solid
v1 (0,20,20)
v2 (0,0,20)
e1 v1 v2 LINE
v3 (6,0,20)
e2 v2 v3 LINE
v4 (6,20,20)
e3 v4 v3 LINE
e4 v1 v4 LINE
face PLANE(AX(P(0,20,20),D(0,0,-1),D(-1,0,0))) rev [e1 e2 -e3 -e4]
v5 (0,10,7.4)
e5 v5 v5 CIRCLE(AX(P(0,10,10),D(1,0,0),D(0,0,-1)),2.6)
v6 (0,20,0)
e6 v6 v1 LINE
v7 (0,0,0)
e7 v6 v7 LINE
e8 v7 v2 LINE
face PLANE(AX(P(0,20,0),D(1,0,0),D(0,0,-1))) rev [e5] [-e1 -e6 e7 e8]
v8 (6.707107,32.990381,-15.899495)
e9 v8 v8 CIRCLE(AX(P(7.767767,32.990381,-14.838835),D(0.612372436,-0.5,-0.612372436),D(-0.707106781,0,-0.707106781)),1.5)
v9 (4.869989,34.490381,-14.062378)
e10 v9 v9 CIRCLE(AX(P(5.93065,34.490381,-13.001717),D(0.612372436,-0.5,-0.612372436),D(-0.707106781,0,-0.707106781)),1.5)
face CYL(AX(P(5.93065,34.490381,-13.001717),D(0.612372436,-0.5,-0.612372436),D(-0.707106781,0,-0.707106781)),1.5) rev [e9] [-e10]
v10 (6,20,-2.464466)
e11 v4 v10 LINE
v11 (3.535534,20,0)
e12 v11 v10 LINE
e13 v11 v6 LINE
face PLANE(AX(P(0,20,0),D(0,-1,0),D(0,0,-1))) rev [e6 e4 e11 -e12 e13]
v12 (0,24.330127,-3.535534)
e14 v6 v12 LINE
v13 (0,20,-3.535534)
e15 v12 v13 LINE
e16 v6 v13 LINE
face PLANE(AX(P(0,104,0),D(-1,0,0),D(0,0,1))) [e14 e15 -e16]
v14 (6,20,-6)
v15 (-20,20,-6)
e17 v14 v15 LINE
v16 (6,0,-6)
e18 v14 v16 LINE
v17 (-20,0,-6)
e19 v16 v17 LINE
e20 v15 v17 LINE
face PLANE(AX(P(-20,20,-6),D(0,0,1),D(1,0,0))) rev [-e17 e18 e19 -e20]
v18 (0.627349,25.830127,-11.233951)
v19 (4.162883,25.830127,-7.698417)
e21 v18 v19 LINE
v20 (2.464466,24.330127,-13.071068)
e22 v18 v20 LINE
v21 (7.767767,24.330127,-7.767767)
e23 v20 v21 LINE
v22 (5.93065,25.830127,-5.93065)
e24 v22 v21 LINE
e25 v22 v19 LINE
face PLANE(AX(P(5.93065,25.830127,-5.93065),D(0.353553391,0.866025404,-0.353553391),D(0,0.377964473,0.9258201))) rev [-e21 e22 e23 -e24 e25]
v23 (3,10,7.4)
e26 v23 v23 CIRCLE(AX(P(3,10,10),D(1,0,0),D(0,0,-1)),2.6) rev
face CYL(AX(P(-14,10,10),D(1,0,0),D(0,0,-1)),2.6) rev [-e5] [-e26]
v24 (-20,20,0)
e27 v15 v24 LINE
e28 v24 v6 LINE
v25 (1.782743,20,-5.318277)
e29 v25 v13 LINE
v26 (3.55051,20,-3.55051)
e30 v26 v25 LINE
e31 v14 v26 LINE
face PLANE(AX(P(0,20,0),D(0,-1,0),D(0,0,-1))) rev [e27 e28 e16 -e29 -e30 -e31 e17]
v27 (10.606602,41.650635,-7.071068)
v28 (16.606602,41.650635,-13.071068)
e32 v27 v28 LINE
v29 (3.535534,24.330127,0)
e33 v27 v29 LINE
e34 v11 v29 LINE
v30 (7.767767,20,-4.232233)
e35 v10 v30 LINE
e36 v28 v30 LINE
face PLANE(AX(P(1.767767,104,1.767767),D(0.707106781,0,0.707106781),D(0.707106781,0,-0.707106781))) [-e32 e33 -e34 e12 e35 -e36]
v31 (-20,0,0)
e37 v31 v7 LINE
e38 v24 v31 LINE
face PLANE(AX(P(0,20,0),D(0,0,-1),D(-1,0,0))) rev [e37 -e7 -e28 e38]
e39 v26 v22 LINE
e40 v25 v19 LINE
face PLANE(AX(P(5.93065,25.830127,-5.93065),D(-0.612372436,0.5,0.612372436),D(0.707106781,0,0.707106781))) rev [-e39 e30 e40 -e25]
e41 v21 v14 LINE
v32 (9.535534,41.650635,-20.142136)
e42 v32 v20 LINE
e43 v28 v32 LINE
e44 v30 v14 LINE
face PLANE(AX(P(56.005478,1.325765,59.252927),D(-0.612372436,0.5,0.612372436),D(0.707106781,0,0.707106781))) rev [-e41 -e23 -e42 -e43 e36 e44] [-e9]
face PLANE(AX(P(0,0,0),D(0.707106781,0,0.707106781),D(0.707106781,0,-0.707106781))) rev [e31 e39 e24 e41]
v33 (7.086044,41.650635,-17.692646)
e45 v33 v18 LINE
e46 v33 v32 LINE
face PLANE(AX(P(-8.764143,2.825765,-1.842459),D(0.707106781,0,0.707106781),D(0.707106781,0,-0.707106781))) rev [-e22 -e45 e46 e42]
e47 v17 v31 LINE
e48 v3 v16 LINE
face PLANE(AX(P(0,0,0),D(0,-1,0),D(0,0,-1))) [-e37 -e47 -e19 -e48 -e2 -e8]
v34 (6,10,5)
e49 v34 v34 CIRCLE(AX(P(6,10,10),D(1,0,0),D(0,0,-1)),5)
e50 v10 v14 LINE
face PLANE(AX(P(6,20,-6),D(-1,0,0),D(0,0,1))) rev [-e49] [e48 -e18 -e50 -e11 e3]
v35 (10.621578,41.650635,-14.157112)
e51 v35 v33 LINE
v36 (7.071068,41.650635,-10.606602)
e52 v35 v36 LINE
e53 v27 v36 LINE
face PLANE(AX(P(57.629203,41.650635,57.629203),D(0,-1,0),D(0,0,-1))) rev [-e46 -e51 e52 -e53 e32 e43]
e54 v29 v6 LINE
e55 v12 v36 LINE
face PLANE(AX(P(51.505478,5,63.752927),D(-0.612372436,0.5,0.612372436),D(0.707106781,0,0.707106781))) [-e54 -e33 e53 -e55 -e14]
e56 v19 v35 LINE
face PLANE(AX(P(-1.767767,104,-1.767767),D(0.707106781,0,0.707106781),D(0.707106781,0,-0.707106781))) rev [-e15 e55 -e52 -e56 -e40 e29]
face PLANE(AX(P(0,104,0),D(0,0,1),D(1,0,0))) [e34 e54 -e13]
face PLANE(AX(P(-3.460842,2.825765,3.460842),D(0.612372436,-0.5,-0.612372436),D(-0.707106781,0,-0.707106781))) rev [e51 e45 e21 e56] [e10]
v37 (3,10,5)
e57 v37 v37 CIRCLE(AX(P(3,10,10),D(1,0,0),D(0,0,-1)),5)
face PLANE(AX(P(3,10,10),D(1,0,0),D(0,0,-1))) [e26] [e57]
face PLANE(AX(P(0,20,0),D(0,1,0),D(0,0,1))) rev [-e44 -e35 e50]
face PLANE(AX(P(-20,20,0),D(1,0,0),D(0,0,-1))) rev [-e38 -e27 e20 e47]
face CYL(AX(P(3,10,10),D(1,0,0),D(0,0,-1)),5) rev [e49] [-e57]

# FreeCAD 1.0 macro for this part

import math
import FreeCAD as App
import Part
import Sketcher
Q = App.Units.Quantity


def add_polygon(sketch, points):
    """Adds a closed chain of lines whose ends are joined by coincident constraints."""
    first, n = sketch.GeometryCount, len(points)
    for a, b in zip(points, points[1:] + points[:1]):
        sketch.addGeometry(Part.LineSegment(App.Vector(*a, 0), App.Vector(*b, 0)), False)
    for i in range(n):
        sketch.addConstraint(Sketcher.Constraint("Coincident", first + i, 2, first + (i + 1) % n, 1))

doc = App.newDocument("Part")
params = doc.addObject("Spreadsheet::Sheet", "Params")
for row, (alias, value) in enumerate([
    ("sketch1_width", "6 mm"),
    ("sketch1_width2", "26 mm"),
    ("pad1_length", "20 mm"),
    ("sketch2_radius", "2.6 mm"),
    ("pocket1_length", "20 mm"),
    ("sketch3_diameter", "10 mm"),
    ("pocket2_length", "3 mm"),
    ("sketch4_width", "12 mm"),
    ("sketch4_length", "84 mm"),
    ("sketch4_length2", "5 mm"),
    ("pad2_length", "84 mm"),
    ("sketch5_width", "84 mm"),
    ("sketch5_length", "25 mm"),
    ("pocket3_length", "84 mm"),
    ("pocket4_length", "84 mm"),
    ("sketch7_height", "84 mm"),
    ("sketch7_length", "5 mm"),
    ("pocket5_length", "84 mm"),
    ("sketch8_diameter", "3 mm"),
    ("sketch8_length", "5 mm"),
    ("sketch8_length2", "20 mm"),
    ("pad3_length", "3 mm"),
    ("sketch9_length", "3 mm"),
    ("pocket6_length", "6 mm"),
    ("sketch10_length", "3 mm"),
    ("sketch10_length2", "5 mm"),
    ("pocket7_length", "2.5 mm"),
], start=1):
    params.set(f"A{row}", alias)
    params.set(f"B{row}", "=" + value)
    params.setAlias(f"B{row}", alias)

body = doc.addObject("PartDesign::Body", "Body")

# Sketch on XZ plane
sketch1 = doc.addObject("Sketcher::SketchObject", "Sketch")
body.addObject(sketch1)
sketch1.AttachmentSupport = (doc.XZ_Plane, [""])
sketch1.MapMode = "FlatFace"
add_polygon(sketch1, [(0, 0), (0, 20), (6, 20), (6, -6), (-20, -6), (-20, 0)])  # lines 0-5
sketch1.addConstraint([
    Sketcher.Constraint("Vertical", 0),
    Sketcher.Constraint("Horizontal", 1),
    Sketcher.Constraint("Vertical", 2),
    Sketcher.Constraint("Horizontal", 3),
    Sketcher.Constraint("Vertical", 4),
    Sketcher.Constraint("Horizontal", 5),
    Sketcher.Constraint("Coincident", 5, 2, -1, 1),
    Sketcher.Constraint("Equal", 5, 0),
    Sketcher.Constraint("Equal", 3, 2),
    Sketcher.Constraint("DistanceX", 1, 1, 1, 2, Q("6 mm")),
    Sketcher.Constraint("DistanceX", 3, 2, 3, 1, Q("26 mm")),
])
sketch1.setExpression("Constraints[15]", "Params.sketch1_width")
sketch1.setExpression("Constraints[16]", "Params.sketch1_width2")
pad1 = doc.addObject("PartDesign::Pad", "Pad")
body.addObject(pad1)
pad1.Profile = sketch1
pad1.setExpression("Length", "Params.pad1_length")
pad1.Reversed = True

# Sketch on YZ plane
sketch2 = doc.addObject("Sketcher::SketchObject", "Sketch001")
body.addObject(sketch2)
sketch2.AttachmentSupport = (doc.YZ_Plane, [""])
sketch2.MapMode = "FlatFace"
sketch2.AttachmentOffset = App.Placement(App.Vector(0, 0, 6), App.Rotation())
sketch2.addGeometry([
    Part.ArcOfCircle(Part.Circle(App.Vector(10, 10, 0), App.Vector(0, 0, 1), 2.6), math.radians(45), math.radians(225)),
    Part.ArcOfCircle(Part.Circle(App.Vector(10, 10, 0), App.Vector(0, 0, 1), 2.6), math.radians(-135), math.radians(-90)),
    Part.ArcOfCircle(Part.Circle(App.Vector(10, 10, 0), App.Vector(0, 0, 1), 2.6), math.radians(-90), math.radians(45)),
], False)
sketch2.addConstraint([
    Sketcher.Constraint("Tangent", 0, 2, 1, 1),
    Sketcher.Constraint("Tangent", 1, 2, 2, 1),
    Sketcher.Constraint("Tangent", 2, 2, 0, 1),
    Sketcher.Constraint("Vertical", 2, 3, 1, 2),
    Sketcher.Constraint("Radius", 0, Q("2.6 mm")),
    Sketcher.Constraint("DistanceX", -1, 1, 0, 3, Q("10 mm")),
    Sketcher.Constraint("DistanceY", -1, 1, 0, 3, Q("10 mm")),
    Sketcher.Constraint("DistanceX", -1, 1, 0, 2, Q("8.161522 mm")),
    Sketcher.Constraint("DistanceX", -1, 1, 2, 2, Q("11.838478 mm")),
])
sketch2.setExpression("Constraints[4]", "Params.sketch2_radius")
pocket1 = doc.addObject("PartDesign::Pocket", "Pocket")
body.addObject(pocket1)
pocket1.Profile = sketch2
pocket1.setExpression("Length", "Params.pocket1_length")

# Sketch on YZ plane
sketch3 = doc.addObject("Sketcher::SketchObject", "Sketch002")
body.addObject(sketch3)
sketch3.AttachmentSupport = (doc.YZ_Plane, [""])
sketch3.MapMode = "FlatFace"
sketch3.AttachmentOffset = App.Placement(App.Vector(0, 0, 6), App.Rotation())
sketch3.addGeometry(Part.Circle(App.Vector(10, 10, 0), App.Vector(0, 0, 1), 5), False)
sketch3.addConstraint([
    Sketcher.Constraint("Diameter", 0, Q("10 mm")),
    Sketcher.Constraint("DistanceX", -1, 1, 0, 3, Q("10 mm")),
    Sketcher.Constraint("DistanceY", -1, 1, 0, 3, Q("10 mm")),
])
sketch3.setExpression("Constraints[0]", "Params.sketch3_diameter")
pocket2 = doc.addObject("PartDesign::Pocket", "Pocket001")
body.addObject(pocket2)
pocket2.Profile = sketch3
pocket2.setExpression("Length", "Params.pocket2_length")

# Sketch on XZ plane
sketch4 = doc.addObject("Sketcher::SketchObject", "Sketch003")
body.addObject(sketch4)
sketch4.AttachmentSupport = (doc.XZ_Plane, [""])
sketch4.MapMode = "FlatFace"
sketch4.AttachmentOffset = App.Placement(App.Vector(0, 0, -20), App.Rotation())
add_polygon(sketch4, [(8, -4), (67, -64), (64, -67), (4, -8), (0, -12), (0, 0), (12, 0)])  # lines 0-6
sketch4.addConstraint([
    Sketcher.Constraint("Vertical", 4),
    Sketcher.Constraint("Horizontal", 5),
    Sketcher.Constraint("Coincident", 4, 2, -1, 1),
    Sketcher.Constraint("Perpendicular", 0, 1),
    Sketcher.Constraint("Perpendicular", 1, 2),
    Sketcher.Constraint("Perpendicular", 2, 3),
    Sketcher.Constraint("Parallel", 3, 6),
    Sketcher.Constraint("Equal", 5, 4),
    Sketcher.Constraint("Equal", 0, 2),
    Sketcher.Constraint("Equal", 3, 6),
    Sketcher.Constraint("DistanceX", 5, 1, 5, 2, Q("12 mm")),
    Sketcher.Constraint("Distance", 0, Q("84 mm")),
    Sketcher.Constraint("Distance", 1, Q("5 mm")),
])
sketch4.setExpression("Constraints[17]", "Params.sketch4_width")
sketch4.setExpression("Constraints[18]", "Params.sketch4_length")
sketch4.setExpression("Constraints[19]", "Params.sketch4_length2")
pad2 = doc.addObject("PartDesign::Pad", "Pad001")
body.addObject(pad2)
pad2.Profile = sketch4
pad2.setExpression("Length", "Params.pad2_length")
pad2.Reversed = True

# Sketch on an angled plane
sketch5 = doc.addObject("Sketcher::SketchObject", "Sketch004")
body.addObject(sketch5)
sketch5.Placement = App.Placement(App.Vector(-1.767767, 0, -1.767767), App.Rotation(App.Vector(-0.707106781, 0, 0.707106781), App.Vector(0, 0.999999999, 0), App.Vector(-0.707106781, 0, -0.707106781), "ZXY"))
add_polygon(sketch5, [(-92, 104), (-92, 20), (-8, 20), (-21, 42), (-12, 42), (-8, 35), (0, 20), (0, 104)])  # lines 0-7
sketch5.addConstraint([
    Sketcher.Constraint("Vertical", 0),
    Sketcher.Constraint("Horizontal", 1),
    Sketcher.Constraint("Horizontal", 3),
    Sketcher.Constraint("Vertical", 6),
    Sketcher.Constraint("Horizontal", 7),
    Sketcher.Constraint("PointOnObject", 5, 2, -2),
    Sketcher.Constraint("Parallel", 2, 4),
    Sketcher.Constraint("Parallel", 4, 5),
    Sketcher.Constraint("Horizontal", 1, 2, 5, 2),
    Sketcher.Constraint("Vertical", 1, 2, 4, 2),
    Sketcher.Constraint("Equal", 1, 0),
    Sketcher.Constraint("DistanceX", 1, 1, 1, 2, Q("84 mm")),
    Sketcher.Constraint("Angle", 2, Q("120 deg")),
    Sketcher.Constraint("Distance", 2, Q("25 mm")),
    Sketcher.Constraint("DistanceY", -1, 1, 0, 2, Q("20 mm")),
    Sketcher.Constraint("DistanceX", 3, 1, 3, 2, Q("8.485281 mm")),
])
sketch5.setExpression("Constraints[19]", "Params.sketch5_width")
sketch5.setExpression("Constraints[21]", "Params.sketch5_length")
pocket3 = doc.addObject("PartDesign::Pocket", "Pocket002")
body.addObject(pocket3)
pocket3.Profile = sketch5
pocket3.setExpression("Length", "Params.pocket3_length")

# Sketch on an angled plane
sketch6 = doc.addObject("Sketcher::SketchObject", "Sketch005")
body.addObject(sketch6)
sketch6.Placement = App.Placement(App.Vector(1.767767, 0, 1.767767), App.Rotation(App.Vector(0.707106781, 0, -0.707106781), App.Vector(0, 0.999999999, 0), App.Vector(0.707106781, 0, 0.707106781), "ZXY"))
add_polygon(sketch6, [(8, 20), (8, 35), (0, 20)])  # lines 0-2
sketch6.addConstraint([
    Sketcher.Constraint("Vertical", 0),
    Sketcher.Constraint("Horizontal", 2),
    Sketcher.Constraint("PointOnObject", 1, 2, -2),
    Sketcher.Constraint("Angle", 1, Q("-120 deg")),
    Sketcher.Constraint("DistanceY", -1, 1, 1, 2, Q("20 mm")),
    Sketcher.Constraint("DistanceX", 2, 1, 2, 2, Q("8.485281 mm")),
])
pocket4 = doc.addObject("PartDesign::Pocket", "Pocket003")
body.addObject(pocket4)
pocket4.Profile = sketch6
pocket4.setExpression("Length", "Params.pocket4_length")
pocket4.Reversed = True

# Sketch on an angled plane
sketch7 = doc.addObject("Sketcher::SketchObject", "Sketch006")
body.addObject(sketch7)
sketch7.Placement = App.Placement(App.Vector(-1.767767, 0, -1.767767), App.Rotation(App.Vector(-0.707106781, 0, 0.707106781), App.Vector(0, 0.999999999, 0), App.Vector(-0.707106781, 0, -0.707106781), "ZXY"))
add_polygon(sketch7, [(-8.5, 20), (0, 20), (-2.5, 24.3), (-2.5, 104), (-8.5, 104)])  # lines 0-4
sketch7.addConstraint([
    Sketcher.Constraint("Horizontal", 0),
    Sketcher.Constraint("Vertical", 2),
    Sketcher.Constraint("Horizontal", 3),
    Sketcher.Constraint("Vertical", 4),
    Sketcher.Constraint("PointOnObject", 0, 2, -2),
    Sketcher.Constraint("DistanceY", 4, 2, 4, 1, Q("84 mm")),
    Sketcher.Constraint("Angle", 1, Q("120 deg")),
    Sketcher.Constraint("Distance", 1, Q("5 mm")),
    Sketcher.Constraint("DistanceY", -1, 1, 0, 2, Q("20 mm")),
    Sketcher.Constraint("DistanceX", 0, 1, 0, 2, Q("8.485281 mm")),
])
sketch7.setExpression("Constraints[10]", "Params.sketch7_height")
sketch7.setExpression("Constraints[12]", "Params.sketch7_length")
pocket5 = doc.addObject("PartDesign::Pocket", "Pocket004")
body.addObject(pocket5)
pocket5.Profile = sketch7
pocket5.setExpression("Length", "Params.pocket5_length")
pocket5.Reversed = True

# Sketch on an angled plane
sketch8 = doc.addObject("Sketcher::SketchObject", "Sketch007")
body.addObject(sketch8)
sketch8.Placement = App.Placement(App.Vector(-1.623724, 1.325765, 1.623724), App.Rotation(App.Vector(-0.474341649, 0.387298335, -0.790569415), App.Vector(0.632455532, 0.77459667, 0), App.Vector(0.612372436, -0.5, -0.612372436), "ZXY"))
add_polygon(sketch8, [(27.5, 38.3), (23.1, 40.5), (14.1, 22.6), (18.6, 20.4)])  # lines 0-3
sketch8.addGeometry(Part.Circle(App.Vector(20.8, 30.5, 0), App.Vector(0, 0, 1), 1.5), False)  # 4
sketch8.addConstraint([
    Sketcher.Constraint("Perpendicular", 0, 1),
    Sketcher.Constraint("Perpendicular", 1, 2),
    Sketcher.Constraint("Perpendicular", 2, 3),
    Sketcher.Constraint("Diameter", 4, Q("3 mm")),
    Sketcher.Constraint("Distance", 0, Q("5 mm")),
    Sketcher.Constraint("Distance", 1, Q("20 mm")),
    Sketcher.Constraint("DistanceY", -1, 1, 2, 2, Q("20.404701 mm")),
    Sketcher.Constraint("DistanceX", -1, 1, 0, 2, Q("23.059741 mm")),
    Sketcher.Constraint("DistanceX", -1, 1, 1, 2, Q("14.115469 mm")),
    Sketcher.Constraint("DistanceX", -1, 1, 4, 3, Q("20.823673 mm")),
    Sketcher.Constraint("DistanceY", -1, 1, 4, 3, Q("30.467006 mm")),
])
sketch8.setExpression("Constraints[7]", "Params.sketch8_diameter")
sketch8.setExpression("Constraints[8]", "Params.sketch8_length")
sketch8.setExpression("Constraints[9]", "Params.sketch8_length2")
pad3 = doc.addObject("PartDesign::Pad", "Pad002")
body.addObject(pad3)
pad3.Profile = sketch8
pad3.setExpression("Length", "Params.pad3_length")
pad3.Reversed = True

# Sketch on an angled plane
sketch9 = doc.addObject("Sketcher::SketchObject", "Sketch008")
body.addObject(sketch9)
sketch9.Placement = App.Placement(App.Vector(-1.767767, 0, -1.767767), App.Rotation(App.Vector(0.707106781, 0, -0.707106781), App.Vector(0, 0.999999999, 0), App.Vector(0.707106781, 0, 0.707106781), "ZXY"))
add_polygon(sketch9, [(17.5, 41.7), (21, 41.7), (18.4, 43.2)])  # lines 0-2
sketch9.addConstraint([
    Sketcher.Constraint("Horizontal", 0),
    Sketcher.Constraint("Perpendicular", 1, 2),
    Sketcher.Constraint("Angle", 1, Q("150 deg")),
    Sketcher.Constraint("Distance", 1, Q("3 mm")),
    Sketcher.Constraint("DistanceX", -1, 1, 0, 2, Q("20.985281 mm")),
    Sketcher.Constraint("DistanceY", -1, 1, 0, 2, Q("41.650635 mm")),
])
sketch9.setExpression("Constraints[6]", "Params.sketch9_length")
pocket6 = doc.addObject("PartDesign::Pocket", "Pocket005")
body.addObject(pocket6)
pocket6.Profile = sketch9
pocket6.setExpression("Length", "Params.pocket6_length")

# Sketch on an angled plane
sketch10 = doc.addObject("Sketcher::SketchObject", "Sketch009")
body.addObject(sketch10)
sketch10.Placement = App.Placement(App.Vector(-1.767767, 0, -1.767767), App.Rotation(App.Vector(-0.707106781, 0, 0.707106781), App.Vector(0, 0.999999999, 0), App.Vector(-0.707106781, 0, -0.707106781), "ZXY"))
add_polygon(sketch10, [(-5, 20), (-8.4, 25.8), (-11, 24.3), (-8.5, 20)])  # lines 0-3
sketch10.addConstraint([
    Sketcher.Constraint("Horizontal", 3),
    Sketcher.Constraint("Perpendicular", 0, 1),
    Sketcher.Constraint("Perpendicular", 1, 2),
    Sketcher.Constraint("Angle", 0, Q("120 deg")),
    Sketcher.Constraint("Distance", 1, Q("3 mm")),
    Sketcher.Constraint("Distance", 2, Q("5 mm")),
    Sketcher.Constraint("DistanceY", -1, 1, 2, 2, Q("20 mm")),
    Sketcher.Constraint("DistanceX", 1, 2, -1, 1, Q("10.985281 mm")),
])
sketch10.setExpression("Constraints[8]", "Params.sketch10_length")
sketch10.setExpression("Constraints[9]", "Params.sketch10_length2")
pocket7 = doc.addObject("PartDesign::Pocket", "Pocket006")
body.addObject(pocket7)
pocket7.Profile = sketch10
pocket7.setExpression("Length", "Params.pocket7_length")

doc.recompute()
